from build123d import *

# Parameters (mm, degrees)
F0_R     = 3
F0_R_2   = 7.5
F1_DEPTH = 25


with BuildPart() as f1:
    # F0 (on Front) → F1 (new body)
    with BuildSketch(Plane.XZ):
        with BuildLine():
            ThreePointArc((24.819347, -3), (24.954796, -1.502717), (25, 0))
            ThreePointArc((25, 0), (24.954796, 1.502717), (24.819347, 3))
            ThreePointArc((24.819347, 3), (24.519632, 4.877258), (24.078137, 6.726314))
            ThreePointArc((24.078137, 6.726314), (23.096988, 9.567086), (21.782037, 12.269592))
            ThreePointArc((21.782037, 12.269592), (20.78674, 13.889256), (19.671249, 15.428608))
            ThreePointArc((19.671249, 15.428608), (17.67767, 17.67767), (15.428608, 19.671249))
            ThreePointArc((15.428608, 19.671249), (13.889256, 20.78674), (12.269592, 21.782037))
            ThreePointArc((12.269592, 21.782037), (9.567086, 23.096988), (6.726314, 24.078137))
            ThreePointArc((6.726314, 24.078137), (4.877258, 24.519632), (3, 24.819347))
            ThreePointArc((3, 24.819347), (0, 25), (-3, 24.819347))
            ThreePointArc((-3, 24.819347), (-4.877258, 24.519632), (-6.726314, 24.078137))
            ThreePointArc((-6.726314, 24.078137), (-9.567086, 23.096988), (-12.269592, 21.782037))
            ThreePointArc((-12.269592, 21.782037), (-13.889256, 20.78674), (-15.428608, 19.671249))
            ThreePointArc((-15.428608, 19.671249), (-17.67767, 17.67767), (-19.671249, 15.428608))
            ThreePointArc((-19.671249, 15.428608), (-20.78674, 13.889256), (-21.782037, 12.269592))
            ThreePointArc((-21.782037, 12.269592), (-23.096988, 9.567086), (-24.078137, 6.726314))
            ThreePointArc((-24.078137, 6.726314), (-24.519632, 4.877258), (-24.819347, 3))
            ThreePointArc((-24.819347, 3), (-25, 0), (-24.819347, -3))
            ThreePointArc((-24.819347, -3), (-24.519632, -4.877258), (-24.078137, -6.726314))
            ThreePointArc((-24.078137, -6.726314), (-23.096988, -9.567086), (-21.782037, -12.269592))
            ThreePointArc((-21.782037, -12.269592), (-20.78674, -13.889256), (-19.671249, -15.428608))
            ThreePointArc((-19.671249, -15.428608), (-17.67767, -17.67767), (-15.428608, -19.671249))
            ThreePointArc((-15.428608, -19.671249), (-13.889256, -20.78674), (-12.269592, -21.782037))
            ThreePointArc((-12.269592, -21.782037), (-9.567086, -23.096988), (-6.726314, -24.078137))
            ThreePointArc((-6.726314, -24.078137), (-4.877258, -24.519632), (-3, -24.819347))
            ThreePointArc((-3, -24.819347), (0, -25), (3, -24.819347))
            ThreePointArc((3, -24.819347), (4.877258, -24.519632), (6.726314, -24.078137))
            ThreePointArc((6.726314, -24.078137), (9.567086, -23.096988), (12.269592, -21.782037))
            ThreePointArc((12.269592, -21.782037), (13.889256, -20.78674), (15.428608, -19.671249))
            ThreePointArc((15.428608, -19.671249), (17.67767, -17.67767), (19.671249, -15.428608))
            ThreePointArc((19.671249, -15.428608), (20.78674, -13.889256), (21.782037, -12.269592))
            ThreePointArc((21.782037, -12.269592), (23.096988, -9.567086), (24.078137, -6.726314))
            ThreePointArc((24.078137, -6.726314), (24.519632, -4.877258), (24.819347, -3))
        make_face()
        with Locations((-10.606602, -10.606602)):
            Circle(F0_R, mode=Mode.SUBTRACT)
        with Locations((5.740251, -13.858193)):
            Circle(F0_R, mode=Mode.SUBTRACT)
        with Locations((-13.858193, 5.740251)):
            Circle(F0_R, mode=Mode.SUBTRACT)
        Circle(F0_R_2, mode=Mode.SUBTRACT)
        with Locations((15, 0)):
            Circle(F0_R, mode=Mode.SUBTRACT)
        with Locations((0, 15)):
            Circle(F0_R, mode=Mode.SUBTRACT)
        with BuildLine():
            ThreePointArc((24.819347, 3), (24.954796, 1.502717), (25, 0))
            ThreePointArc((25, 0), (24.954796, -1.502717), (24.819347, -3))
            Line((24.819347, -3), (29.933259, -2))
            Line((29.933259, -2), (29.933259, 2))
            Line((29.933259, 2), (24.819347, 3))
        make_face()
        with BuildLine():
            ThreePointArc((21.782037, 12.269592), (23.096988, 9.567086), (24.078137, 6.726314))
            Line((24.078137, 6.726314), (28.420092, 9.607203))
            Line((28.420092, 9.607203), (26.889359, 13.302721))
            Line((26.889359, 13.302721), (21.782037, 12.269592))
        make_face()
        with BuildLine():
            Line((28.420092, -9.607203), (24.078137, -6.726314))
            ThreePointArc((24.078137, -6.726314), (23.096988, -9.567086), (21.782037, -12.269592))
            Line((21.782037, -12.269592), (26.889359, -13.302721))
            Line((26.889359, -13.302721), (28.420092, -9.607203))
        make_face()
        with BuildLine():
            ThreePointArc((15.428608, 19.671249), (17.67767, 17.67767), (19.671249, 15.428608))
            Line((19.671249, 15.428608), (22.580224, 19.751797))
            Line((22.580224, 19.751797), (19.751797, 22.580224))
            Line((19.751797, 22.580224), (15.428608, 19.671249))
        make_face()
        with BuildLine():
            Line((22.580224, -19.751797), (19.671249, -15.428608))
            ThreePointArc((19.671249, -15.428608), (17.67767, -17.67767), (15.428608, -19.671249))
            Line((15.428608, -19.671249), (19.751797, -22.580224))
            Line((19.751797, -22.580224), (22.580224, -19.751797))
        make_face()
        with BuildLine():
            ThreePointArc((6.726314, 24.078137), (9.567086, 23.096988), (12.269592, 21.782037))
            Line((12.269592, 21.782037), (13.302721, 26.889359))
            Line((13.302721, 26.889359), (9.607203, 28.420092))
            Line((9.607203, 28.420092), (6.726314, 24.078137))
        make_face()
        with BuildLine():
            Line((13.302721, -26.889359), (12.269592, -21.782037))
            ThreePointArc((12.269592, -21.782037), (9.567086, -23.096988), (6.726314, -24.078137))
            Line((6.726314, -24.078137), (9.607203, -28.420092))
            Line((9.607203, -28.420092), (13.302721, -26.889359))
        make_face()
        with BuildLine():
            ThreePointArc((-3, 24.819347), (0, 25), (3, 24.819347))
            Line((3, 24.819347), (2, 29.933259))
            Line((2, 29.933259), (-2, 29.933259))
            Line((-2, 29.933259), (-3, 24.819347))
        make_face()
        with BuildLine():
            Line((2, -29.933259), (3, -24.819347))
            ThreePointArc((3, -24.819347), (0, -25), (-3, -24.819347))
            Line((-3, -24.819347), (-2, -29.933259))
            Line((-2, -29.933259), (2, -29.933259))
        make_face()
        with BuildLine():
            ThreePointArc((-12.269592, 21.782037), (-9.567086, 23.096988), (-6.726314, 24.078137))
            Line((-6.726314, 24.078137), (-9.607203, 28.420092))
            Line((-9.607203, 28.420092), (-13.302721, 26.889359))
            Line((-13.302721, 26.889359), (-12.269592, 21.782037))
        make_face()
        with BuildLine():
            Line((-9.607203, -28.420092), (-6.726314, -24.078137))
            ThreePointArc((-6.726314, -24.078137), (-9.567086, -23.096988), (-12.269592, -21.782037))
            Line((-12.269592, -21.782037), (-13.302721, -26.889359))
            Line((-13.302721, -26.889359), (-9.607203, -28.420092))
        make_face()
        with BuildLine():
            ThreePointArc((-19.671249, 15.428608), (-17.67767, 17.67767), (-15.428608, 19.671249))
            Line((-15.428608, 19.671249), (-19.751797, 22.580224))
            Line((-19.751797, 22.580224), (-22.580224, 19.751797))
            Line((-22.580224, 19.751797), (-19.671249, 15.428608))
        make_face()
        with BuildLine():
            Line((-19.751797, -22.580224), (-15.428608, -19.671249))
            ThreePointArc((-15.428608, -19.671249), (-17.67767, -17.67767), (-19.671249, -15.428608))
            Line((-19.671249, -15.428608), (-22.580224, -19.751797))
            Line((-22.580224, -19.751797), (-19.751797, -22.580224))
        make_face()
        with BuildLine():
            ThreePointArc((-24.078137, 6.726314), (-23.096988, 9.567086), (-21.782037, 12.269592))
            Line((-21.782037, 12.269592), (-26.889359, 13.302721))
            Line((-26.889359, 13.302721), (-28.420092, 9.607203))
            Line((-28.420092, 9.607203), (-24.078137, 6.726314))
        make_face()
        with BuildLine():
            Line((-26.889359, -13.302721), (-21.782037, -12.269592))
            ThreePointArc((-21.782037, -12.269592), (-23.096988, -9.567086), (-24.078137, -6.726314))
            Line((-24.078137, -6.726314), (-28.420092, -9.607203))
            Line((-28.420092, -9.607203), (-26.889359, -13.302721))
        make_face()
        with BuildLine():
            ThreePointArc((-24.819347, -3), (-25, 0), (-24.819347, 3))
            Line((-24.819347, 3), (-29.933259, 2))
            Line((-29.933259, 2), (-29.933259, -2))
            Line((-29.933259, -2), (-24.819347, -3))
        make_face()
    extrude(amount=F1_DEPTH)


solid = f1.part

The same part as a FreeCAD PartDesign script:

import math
import FreeCAD as App
import Part
import Sketcher
from FreeCAD import Vector
Q = App.Units.Quantity

doc = App.newDocument("Part")
body = doc.addObject("PartDesign::Body", "Body")

sketch1 = body.newObject("Sketcher::SketchObject", "Sketch")
sketch1.AttachmentSupport = (doc.getObject("XZ_Plane"), [""])
sketch1.MapMode = "FlatFace"
sketch1.addGeometry([
    Part.ArcOfCircle(Part.Circle(Vector(0.000106, -0.00002, 0), Vector(0, 0, 1), 24.999892), math.radians(-15.607917), math.radians(-6.892085)),
    Part.LineSegment(Vector(24.819347, -3, 0), Vector(29.933259, -2, 0)),
    Part.LineSegment(Vector(29.933259, -2, 0), Vector(29.933259, 2, 0)),
    Part.LineSegment(Vector(29.933259, 2, 0), Vector(24.819347, 3, 0)),
    Part.ArcOfCircle(Part.Circle(Vector(0.000106, 0.00002, 0), Vector(0, 0, 1), 24.999892), math.radians(6.892085), math.radians(15.607917)),
    Part.LineSegment(Vector(24.078137, 6.726314, 0), Vector(28.420092, 9.607203, 0)),
    Part.LineSegment(Vector(28.420092, 9.607203, 0), Vector(26.889359, 13.302721, 0)),
    Part.LineSegment(Vector(26.889359, 13.302721, 0), Vector(21.782037, 12.269592, 0)),
    Part.ArcOfCircle(Part.Circle(Vector(-0.000059, -0.000046, 0), Vector(0, 0, 1), 25.000075), math.radians(29.392129), math.radians(38.107896)),
    Part.LineSegment(Vector(19.671249, 15.428608, 0), Vector(22.580224, 19.751797, 0)),
    Part.LineSegment(Vector(22.580224, 19.751797, 0), Vector(19.751797, 22.580224, 0)),
    Part.LineSegment(Vector(19.751797, 22.580224, 0), Vector(15.428608, 19.671249, 0)),
    Part.ArcOfCircle(Part.Circle(Vector(-0.000046, -0.000059, 0), Vector(0, 0, 1), 25.000075), math.radians(51.892104), math.radians(60.607871)),
    Part.LineSegment(Vector(12.269592, 21.782037, 0), Vector(13.302721, 26.889359, 0)),
    Part.LineSegment(Vector(13.302721, 26.889359, 0), Vector(9.607203, 28.420092, 0)),
    Part.LineSegment(Vector(9.607203, 28.420092, 0), Vector(6.726314, 24.078137, 0)),
    Part.ArcOfCircle(Part.Circle(Vector(0.00002, 0.000106, 0), Vector(0, 0, 1), 24.999892), math.radians(74.392083), math.radians(83.107915)),
    Part.LineSegment(Vector(3, 24.819347, 0), Vector(2, 29.933259, 0)),
    Part.LineSegment(Vector(2, 29.933259, 0), Vector(-2, 29.933259, 0)),
    Part.LineSegment(Vector(-2, 29.933259, 0), Vector(-3, 24.819347, 0)),
    Part.ArcOfCircle(Part.Circle(Vector(-0.00002, 0.000106, 0), Vector(0, 0, 1), 24.999892), math.radians(96.892085), math.radians(105.607917)),
    Part.LineSegment(Vector(-6.726314, 24.078137, 0), Vector(-9.607203, 28.420092, 0)),
    Part.LineSegment(Vector(-9.607203, 28.420092, 0), Vector(-13.302721, 26.889359, 0)),
    Part.LineSegment(Vector(-13.302721, 26.889359, 0), Vector(-12.269592, 21.782037, 0)),
    Part.ArcOfCircle(Part.Circle(Vector(0.000046, -0.000059, 0), Vector(0, 0, 1), 25.000075), math.radians(119.392129), math.radians(128.107896)),
    Part.LineSegment(Vector(-15.428608, 19.671249, 0), Vector(-19.751797, 22.580224, 0)),
    Part.LineSegment(Vector(-19.751797, 22.580224, 0), Vector(-22.580224, 19.751797, 0)),
    Part.LineSegment(Vector(-22.580224, 19.751797, 0), Vector(-19.671249, 15.428608, 0)),
    Part.ArcOfCircle(Part.Circle(Vector(0.000059, -0.000046, 0), Vector(0, 0, 1), 25.000075), math.radians(141.892104), math.radians(150.607871)),
    Part.LineSegment(Vector(-21.782037, 12.269592, 0), Vector(-26.889359, 13.302721, 0)),
    Part.LineSegment(Vector(-26.889359, 13.302721, 0), Vector(-28.420092, 9.607203, 0)),
    Part.LineSegment(Vector(-28.420092, 9.607203, 0), Vector(-24.078137, 6.726314, 0)),
    Part.ArcOfCircle(Part.Circle(Vector(-0.000106, 0.00002, 0), Vector(0, 0, 1), 24.999892), math.radians(164.392083), math.radians(173.107915)),
    Part.LineSegment(Vector(-24.819347, 3, 0), Vector(-29.933259, 2, 0)),
    Part.LineSegment(Vector(-29.933259, 2, 0), Vector(-29.933259, -2, 0)),
    Part.LineSegment(Vector(-29.933259, -2, 0), Vector(-24.819347, -3, 0)),
    Part.ArcOfCircle(Part.Circle(Vector(-0.000106, -0.00002, 0), Vector(0, 0, 1), 24.999892), math.radians(-173.107915), math.radians(-164.392083)),
    Part.LineSegment(Vector(-24.078137, -6.726314, 0), Vector(-28.420092, -9.607203, 0)),
    Part.LineSegment(Vector(-28.420092, -9.607203, 0), Vector(-26.889359, -13.302721, 0)),
    Part.LineSegment(Vector(-26.889359, -13.302721, 0), Vector(-21.782037, -12.269592, 0)),
    Part.ArcOfCircle(Part.Circle(Vector(0.000059, 0.000046, 0), Vector(0, 0, 1), 25.000075), math.radians(-150.607871), math.radians(-141.892104)),
    Part.LineSegment(Vector(-19.671249, -15.428608, 0), Vector(-22.580224, -19.751797, 0)),
    Part.LineSegment(Vector(-22.580224, -19.751797, 0), Vector(-19.751797, -22.580224, 0)),
    Part.LineSegment(Vector(-19.751797, -22.580224, 0), Vector(-15.428608, -19.671249, 0)),
    Part.ArcOfCircle(Part.Circle(Vector(0.000046, 0.000059, 0), Vector(0, 0, 1), 25.000075), math.radians(-128.107896), math.radians(-119.392129)),
    Part.LineSegment(Vector(-12.269592, -21.782037, 0), Vector(-13.302721, -26.889359, 0)),
    Part.LineSegment(Vector(-13.302721, -26.889359, 0), Vector(-9.607203, -28.420092, 0)),
    Part.LineSegment(Vector(-9.607203, -28.420092, 0), Vector(-6.726314, -24.078137, 0)),
    Part.ArcOfCircle(Part.Circle(Vector(-0.00002, -0.000106, 0), Vector(0, 0, 1), 24.999892), math.radians(-105.607917), math.radians(-96.892085)),
    Part.LineSegment(Vector(-3, -24.819347, 0), Vector(-2, -29.933259, 0)),
    Part.LineSegment(Vector(-2, -29.933259, 0), Vector(2, -29.933259, 0)),
    Part.LineSegment(Vector(2, -29.933259, 0), Vector(3, -24.819347, 0)),
    Part.ArcOfCircle(Part.Circle(Vector(0.00002, -0.000106, 0), Vector(0, 0, 1), 24.999892), math.radians(-83.107915), math.radians(-74.392083)),
    Part.LineSegment(Vector(6.726314, -24.078137, 0), Vector(9.607203, -28.420092, 0)),
    Part.LineSegment(Vector(9.607203, -28.420092, 0), Vector(13.302721, -26.889359, 0)),
    Part.LineSegment(Vector(13.302721, -26.889359, 0), Vector(12.269592, -21.782037, 0)),
    Part.ArcOfCircle(Part.Circle(Vector(-0.000046, 0.000059, 0), Vector(0, 0, 1), 25.000075), math.radians(-60.607871), math.radians(-51.892104)),
    Part.LineSegment(Vector(15.428608, -19.671249, 0), Vector(19.751797, -22.580224, 0)),
    Part.LineSegment(Vector(19.751797, -22.580224, 0), Vector(22.580224, -19.751797, 0)),
    Part.LineSegment(Vector(22.580224, -19.751797, 0), Vector(19.671249, -15.428608, 0)),
    Part.ArcOfCircle(Part.Circle(Vector(-0.000059, 0.000046, 0), Vector(0, 0, 1), 25.000075), math.radians(-38.107896), math.radians(-29.392129)),
    Part.LineSegment(Vector(21.782037, -12.269592, 0), Vector(26.889359, -13.302721, 0)),
    Part.LineSegment(Vector(26.889359, -13.302721, 0), Vector(28.420092, -9.607203, 0)),
    Part.LineSegment(Vector(28.420092, -9.607203, 0), Vector(24.078137, -6.726314, 0)),
    Part.Circle(Vector(-10.606602, -10.606602, 0), Vector(0, 0, 1), 3),
    Part.Circle(Vector(0, 0, 0), Vector(0, 0, 1), 7.5),
    Part.Circle(Vector(5.740251, -13.858193, 0), Vector(0, 0, 1), 3),
    Part.Circle(Vector(15, 0, 0), Vector(0, 0, 1), 3),
    Part.Circle(Vector(-13.858193, 5.740251, 0), Vector(0, 0, 1), 3),
    Part.Circle(Vector(0, 15, 0), Vector(0, 0, 1), 3),
], False)
sketch1.addConstraint([
    Sketcher.Constraint("Coincident", 0, 2, 1, 1),
    Sketcher.Constraint("Coincident", 1, 2, 2, 1),
    Sketcher.Constraint("Coincident", 2, 2, 3, 1),
    Sketcher.Constraint("Coincident", 3, 2, 4, 1),
    Sketcher.Constraint("Coincident", 4, 2, 5, 1),
    Sketcher.Constraint("Coincident", 5, 2, 6, 1),
    Sketcher.Constraint("Coincident", 6, 2, 7, 1),
    Sketcher.Constraint("Coincident", 7, 2, 8, 1),
    Sketcher.Constraint("Coincident", 8, 2, 9, 1),
    Sketcher.Constraint("Coincident", 9, 2, 10, 1),
    Sketcher.Constraint("Coincident", 10, 2, 11, 1),
    Sketcher.Constraint("Coincident", 11, 2, 12, 1),
    Sketcher.Constraint("Coincident", 12, 2, 13, 1),
    Sketcher.Constraint("Coincident", 13, 2, 14, 1),
    Sketcher.Constraint("Coincident", 14, 2, 15, 1),
    Sketcher.Constraint("Coincident", 15, 2, 16, 1),
    Sketcher.Constraint("Coincident", 16, 2, 17, 1),
    Sketcher.Constraint("Coincident", 17, 2, 18, 1),
    Sketcher.Constraint("Coincident", 18, 2, 19, 1),
    Sketcher.Constraint("Coincident", 19, 2, 20, 1),
    Sketcher.Constraint("Coincident", 20, 2, 21, 1),
    Sketcher.Constraint("Coincident", 21, 2, 22, 1),
    Sketcher.Constraint("Coincident", 22, 2, 23, 1),
    Sketcher.Constraint("Coincident", 23, 2, 24, 1),
    Sketcher.Constraint("Coincident", 24, 2, 25, 1),
    Sketcher.Constraint("Coincident", 25, 2, 26, 1),
    Sketcher.Constraint("Coincident", 26, 2, 27, 1),
    Sketcher.Constraint("Coincident", 27, 2, 28, 1),
    Sketcher.Constraint("Coincident", 28, 2, 29, 1),
    Sketcher.Constraint("Coincident", 29, 2, 30, 1),
    Sketcher.Constraint("Coincident", 30, 2, 31, 1),
    Sketcher.Constraint("Coincident", 31, 2, 32, 1),
    Sketcher.Constraint("Coincident", 32, 2, 33, 1),
    Sketcher.Constraint("Coincident", 33, 2, 34, 1),
    Sketcher.Constraint("Coincident", 34, 2, 35, 1),
    Sketcher.Constraint("Coincident", 35, 2, 36, 1),
    Sketcher.Constraint("Coincident", 36, 2, 37, 1),
    Sketcher.Constraint("Coincident", 37, 2, 38, 1),
    Sketcher.Constraint("Coincident", 38, 2, 39, 1),
    Sketcher.Constraint("Coincident", 39, 2, 40, 1),
    Sketcher.Constraint("Coincident", 40, 2, 41, 1),
    Sketcher.Constraint("Coincident", 41, 2, 42, 1),
    Sketcher.Constraint("Coincident", 42, 2, 43, 1),
    Sketcher.Constraint("Coincident", 43, 2, 44, 1),
    Sketcher.Constraint("Coincident", 44, 2, 45, 1),
    Sketcher.Constraint("Coincident", 45, 2, 46, 1),
    Sketcher.Constraint("Coincident", 46, 2, 47, 1),
    Sketcher.Constraint("Coincident", 47, 2, 48, 1),
    Sketcher.Constraint("Coincident", 48, 2, 49, 1),
    Sketcher.Constraint("Coincident", 49, 2, 50, 1),
    Sketcher.Constraint("Coincident", 50, 2, 51, 1),
    Sketcher.Constraint("Coincident", 51, 2, 52, 1),
    Sketcher.Constraint("Coincident", 52, 2, 53, 1),
    Sketcher.Constraint("Coincident", 53, 2, 54, 1),
    Sketcher.Constraint("Coincident", 54, 2, 55, 1),
    Sketcher.Constraint("Coincident", 55, 2, 56, 1),
    Sketcher.Constraint("Coincident", 56, 2, 57, 1),
    Sketcher.Constraint("Coincident", 57, 2, 58, 1),
    Sketcher.Constraint("Coincident", 58, 2, 59, 1),
    Sketcher.Constraint("Coincident", 59, 2, 60, 1),
    Sketcher.Constraint("Coincident", 60, 2, 61, 1),
    Sketcher.Constraint("Coincident", 61, 2, 62, 1),
    Sketcher.Constraint("Coincident", 62, 2, 63, 1),
    Sketcher.Constraint("Coincident", 63, 2, 0, 1),
    Sketcher.Constraint("Vertical", 2),
    Sketcher.Constraint("Horizontal", 18),
    Sketcher.Constraint("Vertical", 34),
    Sketcher.Constraint("Horizontal", 50),
    Sketcher.Constraint("Coincident", 65, 3, -1, 1),
    Sketcher.Constraint("Equal", 0, 4),
    Sketcher.Constraint("Equal", 8, 12),
    Sketcher.Constraint("Equal", 4, 16),
    Sketcher.Constraint("Equal", 16, 20),
    Sketcher.Constraint("Equal", 12, 24),
    Sketcher.Constraint("Equal", 24, 28),
    Sketcher.Constraint("Equal", 20, 32),
    Sketcher.Constraint("Equal", 32, 36),
    Sketcher.Constraint("Equal", 28, 40),
    Sketcher.Constraint("Equal", 40, 44),
    Sketcher.Constraint("Equal", 36, 48),
    Sketcher.Constraint("Equal", 48, 52),
    Sketcher.Constraint("Equal", 44, 56),
    Sketcher.Constraint("Equal", 56, 60),
    Sketcher.Constraint("Equal", 64, 66),
    Sketcher.Constraint("Equal", 66, 67),
    Sketcher.Constraint("Equal", 67, 68),
    Sketcher.Constraint("Equal", 68, 69),
    Sketcher.Constraint("Symmetric", 0, 3, 32, 3, -1, 1),
    Sketcher.Constraint("Symmetric", 4, 3, 36, 3, -1, 1),
    Sketcher.Constraint("Symmetric", 8, 3, 40, 3, -1, 1),
    Sketcher.Constraint("Symmetric", 12, 3, 44, 3, -1, 1),
    Sketcher.Constraint("Symmetric", 16, 3, 48, 3, -1, 1),
    Sketcher.Constraint("Symmetric", 20, 3, 52, 3, -1, 1),
    Sketcher.Constraint("Symmetric", 24, 3, 56, 3, -1, 1),
    Sketcher.Constraint("Symmetric", 28, 3, 60, 3, -1, 1),
    Sketcher.Constraint("Symmetric", 1, 2, 33, 2, -1, 1),
    Sketcher.Constraint("Symmetric", 5, 2, 37, 2, -1, 1),
    Sketcher.Constraint("Symmetric", 6, 2, 38, 2, -1, 1),
    Sketcher.Constraint("Symmetric", 9, 2, 41, 2, -1, 1),
    Sketcher.Constraint("Symmetric", 10, 2, 42, 2, -1, 1),
    Sketcher.Constraint("Symmetric", 13, 2, 45, 2, -1, 1),
    Sketcher.Constraint("Symmetric", 14, 2, 46, 2, -1, 1),
    Sketcher.Constraint("Symmetric", 17, 2, 49, 2, -1, 1),
    Sketcher.Constraint("Symmetric", 21, 2, 53, 2, -1, 1),
    Sketcher.Constraint("Symmetric", 22, 2, 54, 2, -1, 1),
    Sketcher.Constraint("Symmetric", 25, 2, 57, 2, -1, 1),
    Sketcher.Constraint("Symmetric", 26, 2, 58, 2, -1, 1),
    Sketcher.Constraint("Symmetric", 29, 2, 61, 2, -1, 1),
    Sketcher.Constraint("Symmetric", 30, 2, 62, 2, -1, 1),
    Sketcher.Constraint("Symmetric", 16, 3, 20, 3, -2),
    Sketcher.Constraint("Symmetric", 12, 3, 24, 3, -2),
    Sketcher.Constraint("Symmetric", 8, 3, 28, 3, -2),
    Sketcher.Constraint("Symmetric", 4, 3, 32, 3, -2),
    Sketcher.Constraint("Symmetric", 14, 2, 21, 2, -2),
    Sketcher.Constraint("Symmetric", 13, 2, 22, 2, -2),
    Sketcher.Constraint("Symmetric", 10, 2, 25, 2, -2),
    Sketcher.Constraint("Symmetric", 9, 2, 26, 2, -2),
    Sketcher.Constraint("Symmetric", 6, 2, 29, 2, -2),
    Sketcher.Constraint("Symmetric", 5, 2, 30, 2, -2),
    Sketcher.Constraint("PointOnObject", 67, 3, -1),
    Sketcher.Constraint("PointOnObject", 69, 3, -2),
    Sketcher.Constraint("Perpendicular", 1, 17),
    Sketcher.Constraint("Perpendicular", 3, 19),
    Sketcher.Constraint("Perpendicular", 5, 21),
    Sketcher.Constraint("Perpendicular", 6, 22),
    Sketcher.Constraint("Perpendicular", 7, 23),
    Sketcher.Constraint("Perpendicular", 9, 25),
    Sketcher.Constraint("Perpendicular", 10, 26),
    Sketcher.Constraint("Perpendicular", 11, 27),
    Sketcher.Constraint("Perpendicular", 13, 29),
    Sketcher.Constraint("Perpendicular", 15, 31),
    Sketcher.Constraint("Perpendicular", 17, 33),
    Sketcher.Constraint("Perpendicular", 19, 35),
    Sketcher.Constraint("Perpendicular", 21, 37),
    Sketcher.Constraint("Perpendicular", 23, 39),
    Sketcher.Constraint("Perpendicular", 25, 41),
    Sketcher.Constraint("Perpendicular", 27, 43),
    Sketcher.Constraint("Perpendicular", 29, 45),
    Sketcher.Constraint("Perpendicular", 31, 47),
    Sketcher.Constraint("Perpendicular", 33, 49),
    Sketcher.Constraint("Perpendicular", 35, 51),
    Sketcher.Constraint("Perpendicular", 37, 53),
    Sketcher.Constraint("Perpendicular", 39, 55),
    Sketcher.Constraint("Perpendicular", 41, 57),
    Sketcher.Constraint("Perpendicular", 43, 59),
    Sketcher.Constraint("Perpendicular", 45, 61),
    Sketcher.Constraint("Perpendicular", 47, 63),
    Sketcher.Constraint("Horizontal", 16, 2, 19, 2),
    Sketcher.Constraint("Horizontal", 15, 2, 20, 2),
    Sketcher.Constraint("Horizontal", 12, 2, 23, 2),
    Sketcher.Constraint("Horizontal", 11, 2, 24, 2),
    Sketcher.Constraint("Horizontal", 3, 2, 32, 2),
    Sketcher.Constraint("Horizontal", 2, 2, 33, 2),
    Sketcher.Constraint("Horizontal", 1, 2, 34, 2),
    Sketcher.Constraint("Horizontal", 48, 2, 51, 2),
    Sketcher.Constraint("Equal", 50, 2),
    Sketcher.Constraint("Equal", 3, 5),
    Sketcher.Constraint("Equal", 5, 7),
    Sketcher.Constraint("Equal", 7, 9),
    Sketcher.Constraint("Equal", 6, 10),
    Sketcher.Constraint("Equal", 9, 11),
    Sketcher.Constraint("Equal", 11, 13),
    Sketcher.Constraint("Equal", 10, 14),
    Sketcher.Constraint("Equal", 13, 15),
    Sketcher.Constraint("Equal", 15, 17),
    Sketcher.Constraint("Diameter", 64, Q("6 mm")),
    Sketcher.Constraint("Diameter", 65, Q("15 mm")),
    Sketcher.Constraint("DistanceX", 18, 2, 18, 1, Q("4 mm")),
    Sketcher.Constraint("Distance", 6, Q("4 mm")),
    Sketcher.Constraint("DistanceX", -1, 1, 67, 3, Q("15 mm")),
    Sketcher.Constraint("DistanceY", -1, 1, 69, 3, Q("15 mm")),
    Sketcher.Constraint("DistanceY", 0, 2, -1, 1, Q("3 mm")),
    Sketcher.Constraint("Angle", 6, Q("112.499991 deg")),
    Sketcher.Constraint("Radius", 0, Q("24.999892 mm")),
    Sketcher.Constraint("Radius", 8, Q("25.000075 mm")),
    Sketcher.Constraint("DistanceX", -1, 1, 66, 3, Q("5.740251 mm")),
    Sketcher.Constraint("DistanceY", -1, 1, 68, 3, Q("5.740251 mm")),
    Sketcher.Constraint("DistanceX", -1, 1, 1, 2, Q("29.933259 mm")),
    Sketcher.Constraint("DistanceX", -1, 1, 6, 2, Q("26.889359 mm")),
    Sketcher.Constraint("DistanceY", -1, 1, 6, 2, Q("13.302721 mm")),
    Sketcher.Constraint("DistanceY", -1, 1, 7, 2, Q("12.269592 mm")),
    Sketcher.Constraint("DistanceX", -1, 1, 8, 2, Q("19.671249 mm")),
    Sketcher.Constraint("DistanceY", -1, 1, 11, 2, Q("19.671249 mm")),
    Sketcher.Constraint("DistanceX", -1, 1, 12, 2, Q("12.269592 mm")),
    Sketcher.Constraint("DistanceY", -1, 1, 13, 2, Q("26.889359 mm")),
    Sketcher.Constraint("DistanceY", -1, 1, 17, 2, Q("29.933259 mm")),
    Sketcher.Constraint("Distance", 1, Q("5.210767 mm")),
    Sketcher.Constraint("DistanceX", -1, 1, 0, 3, Q("0.000106 mm")),
    Sketcher.Constraint("DistanceX", 64, 3, -1, 1, Q("10.606602 mm")),
    Sketcher.Constraint("DistanceY", 64, 3, -1, 1, Q("10.606602 mm")),
    Sketcher.Constraint("DistanceY", 66, 3, -1, 1, Q("13.858193 mm")),
    Sketcher.Constraint("DistanceX", 68, 3, -1, 1, Q("13.858193 mm")),
    Sketcher.Constraint("DistanceY", -1, 1, 8, 2, Q("15.428608 mm")),
])
pad1 = body.newObject("PartDesign::Pad", "Pad")
pad1.Profile = sketch1
pad1.Length = 25

doc.recompute()
